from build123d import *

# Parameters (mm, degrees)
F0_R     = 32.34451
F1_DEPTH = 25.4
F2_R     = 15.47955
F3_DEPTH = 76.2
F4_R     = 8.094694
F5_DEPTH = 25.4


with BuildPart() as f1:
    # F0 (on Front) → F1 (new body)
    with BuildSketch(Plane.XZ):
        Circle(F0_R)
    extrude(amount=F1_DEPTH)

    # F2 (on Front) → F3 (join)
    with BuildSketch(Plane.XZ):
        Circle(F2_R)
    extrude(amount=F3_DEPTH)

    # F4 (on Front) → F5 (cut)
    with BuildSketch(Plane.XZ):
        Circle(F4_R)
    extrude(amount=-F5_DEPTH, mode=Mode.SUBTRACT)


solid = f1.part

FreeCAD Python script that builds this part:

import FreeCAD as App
import Part
import Sketcher

V = App.Vector
Q = App.Units.Quantity

doc = App.newDocument("Part")
body = doc.addObject("PartDesign::Body", "Body")

# Sketch on XZ plane
sketch1 = doc.addObject("Sketcher::SketchObject", "Sketch")
body.addObject(sketch1)
sketch1.AttachmentSupport = (doc.XZ_Plane, [""])
sketch1.MapMode = "FlatFace"
sketch1.addGeometry(Part.Circle(V(0, 0, 0), V(0, 0, 1), 32.34451), False)
sketch1.addConstraint([
    Sketcher.Constraint("Coincident", 0, 3, -1, 1),
    Sketcher.Constraint("Diameter", 0, Q("64.68902 mm")),
])
pad1 = doc.addObject("PartDesign::Pad", "Pad")
body.addObject(pad1)
pad1.Profile = sketch1
pad1.Length = Q("1 in")

# Sketch on XZ plane
sketch2 = doc.addObject("Sketcher::SketchObject", "Sketch001")
body.addObject(sketch2)
sketch2.AttachmentSupport = (doc.XZ_Plane, [""])
sketch2.MapMode = "FlatFace"
sketch2.addGeometry(Part.Circle(V(0, 0, 0), V(0, 0, 1), 15.47955), False)
sketch2.addConstraint([
    Sketcher.Constraint("Coincident", 0, 3, -1, 1),
    Sketcher.Constraint("Diameter", 0, Q("30.9591 mm")),
])
pad2 = doc.addObject("PartDesign::Pad", "Pad001")
body.addObject(pad2)
pad2.Profile = sketch2
pad2.Length = Q("3 in")

# Sketch on XZ plane
sketch3 = doc.addObject("Sketcher::SketchObject", "Sketch002")
body.addObject(sketch3)
sketch3.AttachmentSupport = (doc.XZ_Plane, [""])
sketch3.MapMode = "FlatFace"
sketch3.addGeometry(Part.Circle(V(0, 0, 0), V(0, 0, 1), 8.094694), False)
sketch3.addConstraint([
    Sketcher.Constraint("Coincident", 0, 3, -1, 1),
    Sketcher.Constraint("Diameter", 0, Q("16.189388 mm")),
])
pocket1 = doc.addObject("PartDesign::Pocket", "Pocket")
body.addObject(pocket1)
pocket1.Profile = sketch3
pocket1.Length = Q("1 in")

doc.recompute()
